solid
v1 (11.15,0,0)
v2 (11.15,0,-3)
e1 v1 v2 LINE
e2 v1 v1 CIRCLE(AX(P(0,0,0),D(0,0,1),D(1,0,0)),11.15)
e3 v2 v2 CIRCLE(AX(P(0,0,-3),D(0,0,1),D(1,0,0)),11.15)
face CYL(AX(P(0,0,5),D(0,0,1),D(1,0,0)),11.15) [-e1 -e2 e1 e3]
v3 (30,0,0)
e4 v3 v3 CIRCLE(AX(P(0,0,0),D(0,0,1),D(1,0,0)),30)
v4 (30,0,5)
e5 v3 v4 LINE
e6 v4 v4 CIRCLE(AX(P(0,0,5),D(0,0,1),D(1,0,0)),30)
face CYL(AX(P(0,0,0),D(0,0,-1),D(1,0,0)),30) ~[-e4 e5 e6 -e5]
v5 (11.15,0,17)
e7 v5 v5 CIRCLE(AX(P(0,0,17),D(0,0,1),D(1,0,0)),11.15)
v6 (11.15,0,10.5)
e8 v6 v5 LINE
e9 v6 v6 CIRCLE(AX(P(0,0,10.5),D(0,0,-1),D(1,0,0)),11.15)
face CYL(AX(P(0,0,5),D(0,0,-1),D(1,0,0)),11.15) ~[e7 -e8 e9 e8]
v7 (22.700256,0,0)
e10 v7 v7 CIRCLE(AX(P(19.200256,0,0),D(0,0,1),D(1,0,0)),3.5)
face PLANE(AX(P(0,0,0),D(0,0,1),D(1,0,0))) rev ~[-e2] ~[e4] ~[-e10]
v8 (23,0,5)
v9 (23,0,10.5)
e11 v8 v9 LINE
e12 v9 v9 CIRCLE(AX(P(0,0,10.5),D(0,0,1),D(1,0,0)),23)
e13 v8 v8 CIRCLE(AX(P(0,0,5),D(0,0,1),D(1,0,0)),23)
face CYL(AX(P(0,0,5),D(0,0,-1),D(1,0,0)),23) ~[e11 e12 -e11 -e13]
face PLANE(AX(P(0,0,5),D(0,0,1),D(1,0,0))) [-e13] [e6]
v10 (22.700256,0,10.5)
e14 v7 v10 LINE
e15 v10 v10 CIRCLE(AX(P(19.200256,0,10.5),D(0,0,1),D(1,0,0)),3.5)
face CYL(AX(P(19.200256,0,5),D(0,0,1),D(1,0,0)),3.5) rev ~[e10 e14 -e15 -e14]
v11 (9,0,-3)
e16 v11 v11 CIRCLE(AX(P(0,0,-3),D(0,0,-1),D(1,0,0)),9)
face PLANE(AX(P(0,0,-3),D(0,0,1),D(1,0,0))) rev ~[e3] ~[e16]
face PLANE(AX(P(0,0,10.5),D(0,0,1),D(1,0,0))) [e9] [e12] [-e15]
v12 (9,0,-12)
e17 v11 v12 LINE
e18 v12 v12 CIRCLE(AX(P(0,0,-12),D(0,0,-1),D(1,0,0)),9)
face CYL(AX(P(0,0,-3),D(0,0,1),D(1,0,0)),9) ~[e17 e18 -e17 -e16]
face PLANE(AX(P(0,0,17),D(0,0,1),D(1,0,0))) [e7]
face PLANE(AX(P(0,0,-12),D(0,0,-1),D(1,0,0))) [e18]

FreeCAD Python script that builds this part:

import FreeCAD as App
import Part
import Sketcher
from FreeCAD import Vector

doc = App.newDocument("Part")
body = doc.addObject("PartDesign::Body", "Body")

# Sketch on XY plane
sketch1 = body.newObject("Sketcher::SketchObject", "Sketch")
sketch1.AttachmentSupport = (doc.getObject("XY_Plane"), [""])
sketch1.MapMode = "FlatFace"
sketch1.addGeometry(Part.Circle(Vector(0, 0, 0), Vector(0, 0, 1), 30), False)
sketch1.addConstraint(Sketcher.Constraint("Coincident", 0, 3, -1, 1))
sketch1.addConstraint(Sketcher.Constraint("Diameter", 0, 60.0))
pad1 = body.newObject("PartDesign::Pad", "Pad")
pad1.Profile = sketch1
pad1.Length = 5

# Sketch on XY plane
sketch2 = body.newObject("Sketcher::SketchObject", "Sketch001")
sketch2.AttachmentSupport = (doc.getObject("XY_Plane"), [""])
sketch2.MapMode = "FlatFace"
sketch2.AttachmentOffset = App.Placement(Vector(0, 0, 5), App.Rotation())
sketch2.addGeometry(Part.Circle(Vector(0, 0, 0), Vector(0, 0, 1), 11.15), False)
sketch2.addConstraint(Sketcher.Constraint("Coincident", 0, 3, -1, 1))
sketch2.addConstraint(Sketcher.Constraint("Diameter", 0, 22.3))
pad2 = body.newObject("PartDesign::Pad", "Pad001")
pad2.Profile = sketch2
pad2.Type = "TwoLengths"
pad2.Length = 12
pad2.Length2 = 8

# Sketch on XY plane
sketch3 = body.newObject("Sketcher::SketchObject", "Sketch002")
sketch3.AttachmentSupport = (doc.getObject("XY_Plane"), [""])
sketch3.MapMode = "FlatFace"
sketch3.AttachmentOffset = App.Placement(Vector(0, 0, -3), App.Rotation())
sketch3.addGeometry(Part.Circle(Vector(0, 0, 0), Vector(0, 0, 1), 9), False)
sketch3.addConstraint(Sketcher.Constraint("Coincident", 0, 3, -1, 1))
sketch3.addConstraint(Sketcher.Constraint("Diameter", 0, 18.0))
pad3 = body.newObject("PartDesign::Pad", "Pad002")
pad3.Profile = sketch3
pad3.Length = 9
pad3.Reversed = True

# Sketch on XY plane
sketch4 = body.newObject("Sketcher::SketchObject", "Sketch003")
sketch4.AttachmentSupport = (doc.getObject("XY_Plane"), [""])
sketch4.MapMode = "FlatFace"
sketch4.AttachmentOffset = App.Placement(Vector(0, 0, 5), App.Rotation())
sketch4.addGeometry(Part.Circle(Vector(0, 0, 0), Vector(0, 0, 1), 23), False)
sketch4.addConstraint(Sketcher.Constraint("Coincident", 0, 3, -1, 1))
sketch4.addConstraint(Sketcher.Constraint("Diameter", 0, 46.0))
pad4 = body.newObject("PartDesign::Pad", "Pad003")
pad4.Profile = sketch4
pad4.Length = 5.5

# Sketch on XY plane
sketch5 = body.newObject("Sketcher::SketchObject", "Sketch004")
sketch5.AttachmentSupport = (doc.getObject("XY_Plane"), [""])
sketch5.MapMode = "FlatFace"
sketch5.AttachmentOffset = App.Placement(Vector(0, 0, 5), App.Rotation())
sketch5.addGeometry(Part.Circle(Vector(19.200256, 0, 0), Vector(0, 0, 1), 3.5), False)
sketch5.addConstraint(Sketcher.Constraint("PointOnObject", 0, 3, -1))
sketch5.addConstraint(Sketcher.Constraint("Diameter", 0, 7.0))
sketch5.addConstraint(Sketcher.Constraint("DistanceX", -1, 1, 0, 3, 19.200256))
pocket1 = body.newObject("PartDesign::Pocket", "Pocket")
pocket1.Profile = sketch5
pocket1.Length = 25
pocket1.Midplane = True

doc.recompute()
